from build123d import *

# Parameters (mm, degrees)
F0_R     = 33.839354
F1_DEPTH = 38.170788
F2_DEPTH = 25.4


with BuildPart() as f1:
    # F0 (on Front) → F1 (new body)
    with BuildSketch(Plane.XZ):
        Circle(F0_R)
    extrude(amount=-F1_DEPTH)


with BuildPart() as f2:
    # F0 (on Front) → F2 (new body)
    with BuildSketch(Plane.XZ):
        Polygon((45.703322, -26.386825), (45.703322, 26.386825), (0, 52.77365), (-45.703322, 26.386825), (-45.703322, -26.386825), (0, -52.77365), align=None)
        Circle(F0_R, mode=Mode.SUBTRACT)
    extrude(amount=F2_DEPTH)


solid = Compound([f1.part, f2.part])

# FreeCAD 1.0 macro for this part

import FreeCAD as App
import Part
import Sketcher

V = App.Vector
Q = App.Units.Quantity


def add_polygon(sketch, points):
    """Adds a closed chain of lines whose ends are joined by coincident constraints."""
    first, n = sketch.GeometryCount, len(points)
    for a, b in zip(points, points[1:] + points[:1]):
        sketch.addGeometry(Part.LineSegment(App.Vector(*a, 0), App.Vector(*b, 0)), False)
    for i in range(n):
        sketch.addConstraint(Sketcher.Constraint("Coincident", first + i, 2, first + (i + 1) % n, 1))

doc = App.newDocument("Part")
body = doc.addObject("PartDesign::Body", "Body")

sketch1 = doc.addObject("Sketcher::SketchObject", "Sketch")
body.addObject(sketch1)
sketch1.AttachmentSupport = (doc.XZ_Plane, [""])
sketch1.MapMode = "FlatFace"
sketch1.addGeometry(Part.Circle(V(0, 0, 0), V(0, 0, 1), 33.839354), False)
sketch1.addConstraint(Sketcher.Constraint("Coincident", 0, 3, -1, 1))
sketch1.addConstraint(Sketcher.Constraint("Diameter", 0, Q("67.678708 mm")))
pad1 = doc.addObject("PartDesign::Pad", "Pad")
body.addObject(pad1)
pad1.Profile = sketch1
pad1.Length = 38.170788
pad1.Reversed = True
body2 = doc.addObject("PartDesign::Body", "Body001")

sketch2 = doc.addObject("Sketcher::SketchObject", "Sketch001")
body2.addObject(sketch2)
sketch2.AttachmentSupport = (doc.getObject("XZ_Plane001"), [""])
sketch2.MapMode = "FlatFace"
add_polygon(sketch2, [(45.703322, -26.386825), (45.703322, 26.386825), (0, 52.77365), (-45.703322, 26.386825), (-45.703322, -26.386825), (0, -52.77365)])
sketch2.addGeometry(Part.Circle(V(0, 0, 0), V(0, 0, 1), 33.839354), False)
sketch2.addConstraint(Sketcher.Constraint("Vertical", 0))
sketch2.addConstraint(Sketcher.Constraint("Vertical", 3))
sketch2.addConstraint(Sketcher.Constraint("Coincident", 6, 3, -1, 1))
sketch2.addConstraint(Sketcher.Constraint("Symmetric", 0, 2, 3, 2, -1, 1))
sketch2.addConstraint(Sketcher.Constraint("Symmetric", 1, 2, 4, 2, -1, 1))
sketch2.addConstraint(Sketcher.Constraint("PointOnObject", 1, 2, -2))
sketch2.addConstraint(Sketcher.Constraint("Parallel", 2, 5))
sketch2.addConstraint(Sketcher.Constraint("Horizontal", 0, 2, 2, 2))
sketch2.addConstraint(Sketcher.Constraint("Angle", 1, Q("150 deg")))
sketch2.addConstraint(Sketcher.Constraint("Diameter", 6, Q("67.678708 mm")))
sketch2.addConstraint(Sketcher.Constraint("DistanceY", 0, 1, 0, 2, Q("52.77365 mm")))
sketch2.addConstraint(Sketcher.Constraint("DistanceY", 4, 2, 1, 2, Q("105.5473 mm")))
pad2 = doc.addObject("PartDesign::Pad", "Pad001")
body2.addObject(pad2)
pad2.Profile = sketch2
pad2.Length = Q("1 in")

doc.recompute()
